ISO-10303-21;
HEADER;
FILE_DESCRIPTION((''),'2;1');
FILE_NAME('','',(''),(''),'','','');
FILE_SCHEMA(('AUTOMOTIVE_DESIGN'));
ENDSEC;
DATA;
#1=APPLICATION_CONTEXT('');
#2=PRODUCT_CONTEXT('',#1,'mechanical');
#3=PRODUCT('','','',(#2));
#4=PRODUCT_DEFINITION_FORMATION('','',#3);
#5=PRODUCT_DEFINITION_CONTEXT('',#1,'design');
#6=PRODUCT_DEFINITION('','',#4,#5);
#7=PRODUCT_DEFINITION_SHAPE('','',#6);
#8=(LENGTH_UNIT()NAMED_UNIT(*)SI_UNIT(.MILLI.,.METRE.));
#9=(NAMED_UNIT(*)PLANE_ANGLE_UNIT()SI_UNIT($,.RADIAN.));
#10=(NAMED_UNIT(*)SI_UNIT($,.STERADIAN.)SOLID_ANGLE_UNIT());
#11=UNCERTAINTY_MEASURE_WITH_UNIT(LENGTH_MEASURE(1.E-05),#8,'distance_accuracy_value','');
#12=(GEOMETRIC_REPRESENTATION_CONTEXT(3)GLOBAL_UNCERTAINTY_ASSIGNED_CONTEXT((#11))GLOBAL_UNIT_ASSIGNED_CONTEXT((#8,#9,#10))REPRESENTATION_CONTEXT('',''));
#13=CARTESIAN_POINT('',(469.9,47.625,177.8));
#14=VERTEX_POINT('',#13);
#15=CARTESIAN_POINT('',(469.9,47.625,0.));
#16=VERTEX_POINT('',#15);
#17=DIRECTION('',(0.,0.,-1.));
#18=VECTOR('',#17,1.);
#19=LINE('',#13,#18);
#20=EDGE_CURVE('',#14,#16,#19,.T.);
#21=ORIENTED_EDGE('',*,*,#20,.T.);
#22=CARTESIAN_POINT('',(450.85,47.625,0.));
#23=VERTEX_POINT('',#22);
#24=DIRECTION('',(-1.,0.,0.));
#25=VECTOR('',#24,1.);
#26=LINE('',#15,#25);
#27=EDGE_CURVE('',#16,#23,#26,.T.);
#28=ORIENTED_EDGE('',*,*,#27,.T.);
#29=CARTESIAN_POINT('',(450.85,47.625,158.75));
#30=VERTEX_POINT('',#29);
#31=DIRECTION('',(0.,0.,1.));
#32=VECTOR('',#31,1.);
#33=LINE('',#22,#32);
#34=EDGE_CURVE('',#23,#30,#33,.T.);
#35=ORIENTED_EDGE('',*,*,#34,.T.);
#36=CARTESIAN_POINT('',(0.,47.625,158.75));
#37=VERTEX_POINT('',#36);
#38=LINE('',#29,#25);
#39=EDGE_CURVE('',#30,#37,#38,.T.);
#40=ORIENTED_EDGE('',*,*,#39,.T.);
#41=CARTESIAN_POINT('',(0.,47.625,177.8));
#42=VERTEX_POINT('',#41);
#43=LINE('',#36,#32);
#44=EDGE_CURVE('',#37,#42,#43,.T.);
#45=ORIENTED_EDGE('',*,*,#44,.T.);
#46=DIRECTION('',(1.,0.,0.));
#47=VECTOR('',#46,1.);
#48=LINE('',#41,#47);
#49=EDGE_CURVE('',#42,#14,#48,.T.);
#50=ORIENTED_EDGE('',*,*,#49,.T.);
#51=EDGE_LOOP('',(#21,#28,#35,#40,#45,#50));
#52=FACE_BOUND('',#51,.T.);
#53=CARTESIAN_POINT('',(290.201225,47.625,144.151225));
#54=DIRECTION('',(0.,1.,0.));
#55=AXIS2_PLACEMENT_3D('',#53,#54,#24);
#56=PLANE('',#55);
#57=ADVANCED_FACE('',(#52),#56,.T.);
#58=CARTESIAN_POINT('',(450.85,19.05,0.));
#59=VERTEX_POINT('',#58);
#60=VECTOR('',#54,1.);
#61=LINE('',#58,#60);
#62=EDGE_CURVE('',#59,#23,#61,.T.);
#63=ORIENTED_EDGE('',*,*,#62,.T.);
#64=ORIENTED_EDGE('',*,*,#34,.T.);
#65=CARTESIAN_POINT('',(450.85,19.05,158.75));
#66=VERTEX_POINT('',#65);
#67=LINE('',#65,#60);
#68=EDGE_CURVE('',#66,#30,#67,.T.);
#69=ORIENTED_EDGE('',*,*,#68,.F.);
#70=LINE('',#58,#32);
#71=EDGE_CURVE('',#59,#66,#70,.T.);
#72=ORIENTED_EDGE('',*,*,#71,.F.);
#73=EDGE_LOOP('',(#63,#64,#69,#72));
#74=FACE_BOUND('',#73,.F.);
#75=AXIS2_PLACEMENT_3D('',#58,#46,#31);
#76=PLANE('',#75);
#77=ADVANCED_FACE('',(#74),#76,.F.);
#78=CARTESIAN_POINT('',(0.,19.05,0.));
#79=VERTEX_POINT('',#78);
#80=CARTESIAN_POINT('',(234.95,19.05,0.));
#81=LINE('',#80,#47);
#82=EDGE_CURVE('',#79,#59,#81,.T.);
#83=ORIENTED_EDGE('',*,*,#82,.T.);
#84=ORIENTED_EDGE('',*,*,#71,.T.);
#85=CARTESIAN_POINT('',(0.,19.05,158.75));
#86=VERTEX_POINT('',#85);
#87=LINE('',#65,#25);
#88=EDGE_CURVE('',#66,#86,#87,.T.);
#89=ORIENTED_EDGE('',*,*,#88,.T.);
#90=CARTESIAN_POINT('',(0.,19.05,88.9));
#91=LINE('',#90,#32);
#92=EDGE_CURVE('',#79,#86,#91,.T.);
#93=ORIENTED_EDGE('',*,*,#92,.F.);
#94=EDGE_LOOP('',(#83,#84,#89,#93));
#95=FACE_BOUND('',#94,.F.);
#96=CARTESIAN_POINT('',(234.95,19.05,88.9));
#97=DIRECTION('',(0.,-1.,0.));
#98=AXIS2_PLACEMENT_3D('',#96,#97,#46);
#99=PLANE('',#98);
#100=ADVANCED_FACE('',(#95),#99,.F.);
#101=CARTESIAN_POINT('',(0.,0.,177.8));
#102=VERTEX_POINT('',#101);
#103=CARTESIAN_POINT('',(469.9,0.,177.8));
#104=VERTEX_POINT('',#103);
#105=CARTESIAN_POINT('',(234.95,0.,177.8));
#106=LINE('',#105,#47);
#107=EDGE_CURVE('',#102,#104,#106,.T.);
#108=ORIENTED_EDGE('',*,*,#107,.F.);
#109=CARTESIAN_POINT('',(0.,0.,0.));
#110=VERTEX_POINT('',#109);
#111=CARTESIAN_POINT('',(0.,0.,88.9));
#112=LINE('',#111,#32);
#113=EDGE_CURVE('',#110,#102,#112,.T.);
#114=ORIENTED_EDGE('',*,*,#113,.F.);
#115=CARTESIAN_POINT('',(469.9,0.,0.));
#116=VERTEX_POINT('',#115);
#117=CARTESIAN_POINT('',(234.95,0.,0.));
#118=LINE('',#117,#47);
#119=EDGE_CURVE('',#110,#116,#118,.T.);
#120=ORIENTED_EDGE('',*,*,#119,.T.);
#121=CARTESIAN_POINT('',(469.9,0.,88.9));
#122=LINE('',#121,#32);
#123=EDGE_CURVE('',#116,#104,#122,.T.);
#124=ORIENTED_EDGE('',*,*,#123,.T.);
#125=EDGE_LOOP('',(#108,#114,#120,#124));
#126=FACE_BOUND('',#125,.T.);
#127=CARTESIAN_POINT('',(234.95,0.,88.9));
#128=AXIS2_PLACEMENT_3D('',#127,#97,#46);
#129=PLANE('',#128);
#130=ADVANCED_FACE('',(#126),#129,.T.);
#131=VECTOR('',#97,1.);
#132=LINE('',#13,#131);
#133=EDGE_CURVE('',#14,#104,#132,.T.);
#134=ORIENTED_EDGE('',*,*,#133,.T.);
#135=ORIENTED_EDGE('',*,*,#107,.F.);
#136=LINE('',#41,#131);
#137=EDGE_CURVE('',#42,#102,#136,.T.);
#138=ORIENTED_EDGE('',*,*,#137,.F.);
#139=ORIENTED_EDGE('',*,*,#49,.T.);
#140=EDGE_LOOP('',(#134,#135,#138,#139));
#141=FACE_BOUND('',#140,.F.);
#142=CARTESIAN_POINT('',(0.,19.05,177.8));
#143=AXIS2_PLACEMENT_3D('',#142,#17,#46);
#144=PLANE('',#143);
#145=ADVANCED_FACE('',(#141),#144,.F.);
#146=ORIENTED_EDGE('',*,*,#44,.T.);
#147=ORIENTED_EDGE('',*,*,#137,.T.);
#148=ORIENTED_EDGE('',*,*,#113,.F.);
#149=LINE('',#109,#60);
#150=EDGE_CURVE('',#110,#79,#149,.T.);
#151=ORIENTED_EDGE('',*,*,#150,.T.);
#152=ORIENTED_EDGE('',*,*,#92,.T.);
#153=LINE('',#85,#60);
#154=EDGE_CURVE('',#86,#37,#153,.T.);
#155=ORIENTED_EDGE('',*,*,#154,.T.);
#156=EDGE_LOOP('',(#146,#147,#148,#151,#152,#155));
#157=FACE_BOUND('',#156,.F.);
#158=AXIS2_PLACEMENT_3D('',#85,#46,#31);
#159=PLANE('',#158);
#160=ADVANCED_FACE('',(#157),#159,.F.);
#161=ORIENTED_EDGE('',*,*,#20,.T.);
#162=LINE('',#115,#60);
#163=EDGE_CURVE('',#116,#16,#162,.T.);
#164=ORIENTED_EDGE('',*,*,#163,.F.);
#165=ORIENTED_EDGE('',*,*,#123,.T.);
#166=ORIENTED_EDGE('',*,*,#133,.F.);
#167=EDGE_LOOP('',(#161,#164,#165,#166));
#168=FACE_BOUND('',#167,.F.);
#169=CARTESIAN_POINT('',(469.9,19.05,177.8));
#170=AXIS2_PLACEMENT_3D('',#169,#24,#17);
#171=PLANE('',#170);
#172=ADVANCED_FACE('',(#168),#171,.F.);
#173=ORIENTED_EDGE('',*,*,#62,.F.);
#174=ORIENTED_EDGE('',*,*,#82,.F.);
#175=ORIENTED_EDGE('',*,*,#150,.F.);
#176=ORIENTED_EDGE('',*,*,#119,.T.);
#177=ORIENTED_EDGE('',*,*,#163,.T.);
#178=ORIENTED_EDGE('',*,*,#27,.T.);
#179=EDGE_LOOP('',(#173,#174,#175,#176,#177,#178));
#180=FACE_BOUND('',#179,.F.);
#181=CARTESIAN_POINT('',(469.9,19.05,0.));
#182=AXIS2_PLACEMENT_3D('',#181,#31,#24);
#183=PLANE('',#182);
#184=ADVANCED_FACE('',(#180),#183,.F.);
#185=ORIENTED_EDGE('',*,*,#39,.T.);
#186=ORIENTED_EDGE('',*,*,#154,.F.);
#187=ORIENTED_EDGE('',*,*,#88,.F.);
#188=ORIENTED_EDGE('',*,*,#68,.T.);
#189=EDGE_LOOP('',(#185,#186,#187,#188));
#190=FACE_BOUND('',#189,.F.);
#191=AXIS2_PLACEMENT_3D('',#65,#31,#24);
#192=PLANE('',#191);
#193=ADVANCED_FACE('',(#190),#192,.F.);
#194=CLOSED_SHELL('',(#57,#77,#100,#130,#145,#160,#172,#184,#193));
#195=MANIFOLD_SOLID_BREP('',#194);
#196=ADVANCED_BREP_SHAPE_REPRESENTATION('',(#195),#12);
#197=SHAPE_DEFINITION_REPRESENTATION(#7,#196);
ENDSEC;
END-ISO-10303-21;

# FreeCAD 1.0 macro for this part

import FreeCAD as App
import Part
import Sketcher
from FreeCAD import Vector
Q = App.Units.Quantity


def add_polygon(sketch, points):
    """Adds a closed chain of lines whose ends are joined by coincident constraints."""
    first, n = sketch.GeometryCount, len(points)
    for a, b in zip(points, points[1:] + points[:1]):
        sketch.addGeometry(Part.LineSegment(App.Vector(*a, 0), App.Vector(*b, 0)), False)
    for i in range(n):
        sketch.addConstraint(Sketcher.Constraint("Coincident", first + i, 2, first + (i + 1) % n, 1))

doc = App.newDocument("Part")
body = doc.addObject("PartDesign::Body", "Body")

# Sketch on XZ plane
sketch1 = doc.addObject("Sketcher::SketchObject", "Sketch")
body.addObject(sketch1)
sketch1.AttachmentSupport = (doc.XZ_Plane, [""])
sketch1.MapMode = "FlatFace"
add_polygon(sketch1, [(0, 178), (0, 0), (470, 0), (470, 178)])  # lines 0-3
sketch1.addConstraint([
    Sketcher.Constraint("Vertical", 0),
    Sketcher.Constraint("Horizontal", 1),
    Sketcher.Constraint("Vertical", 2),
    Sketcher.Constraint("Horizontal", 3),
    Sketcher.Constraint("Coincident", 0, 2, -1, 1),
    Sketcher.Constraint("DistanceY", 0, 2, 0, 1, Q("7 in")),
    Sketcher.Constraint("DistanceX", 1, 1, 1, 2, Q("18.5 in")),
])
pad1 = doc.addObject("PartDesign::Pad", "Pad")
body.addObject(pad1)
pad1.Profile = sketch1
pad1.Length = Q("0.75 in")
pad1.Reversed = True

# Sketch on XZ plane
sketch2 = doc.addObject("Sketcher::SketchObject", "Sketch001")
body.addObject(sketch2)
sketch2.AttachmentSupport = (doc.XZ_Plane, [""])
sketch2.MapMode = "FlatFace"
sketch2.AttachmentOffset = App.Placement(Vector(0, 0, -0.75 * 25.4), App.Rotation())
add_polygon(sketch2, [(470, 178), (470, 0), (451, 0), (451, 159), (0, 159), (0, 178)])  # lines 0-5
sketch2.addConstraint([
    Sketcher.Constraint("Vertical", 0),
    Sketcher.Constraint("Horizontal", 1),
    Sketcher.Constraint("Vertical", 2),
    Sketcher.Constraint("Horizontal", 3),
    Sketcher.Constraint("Vertical", 4),
    Sketcher.Constraint("Horizontal", 5),
    Sketcher.Constraint("PointOnObject", 0, 2, -1),
    Sketcher.Constraint("PointOnObject", 3, 2, -2),
    Sketcher.Constraint("Equal", 1, 4),
    Sketcher.Constraint("DistanceY", 0, 2, 0, 1, Q("7 in")),
    Sketcher.Constraint("DistanceX", 5, 1, 5, 2, Q("18.5 in")),
    Sketcher.Constraint("DistanceX", 1, 2, 1, 1, Q("0.75 in")),
])
pad2 = doc.addObject("PartDesign::Pad", "Pad001")
body.addObject(pad2)
pad2.Profile = sketch2
pad2.Length = Q("1.125 in")
pad2.Reversed = True

doc.recompute()
